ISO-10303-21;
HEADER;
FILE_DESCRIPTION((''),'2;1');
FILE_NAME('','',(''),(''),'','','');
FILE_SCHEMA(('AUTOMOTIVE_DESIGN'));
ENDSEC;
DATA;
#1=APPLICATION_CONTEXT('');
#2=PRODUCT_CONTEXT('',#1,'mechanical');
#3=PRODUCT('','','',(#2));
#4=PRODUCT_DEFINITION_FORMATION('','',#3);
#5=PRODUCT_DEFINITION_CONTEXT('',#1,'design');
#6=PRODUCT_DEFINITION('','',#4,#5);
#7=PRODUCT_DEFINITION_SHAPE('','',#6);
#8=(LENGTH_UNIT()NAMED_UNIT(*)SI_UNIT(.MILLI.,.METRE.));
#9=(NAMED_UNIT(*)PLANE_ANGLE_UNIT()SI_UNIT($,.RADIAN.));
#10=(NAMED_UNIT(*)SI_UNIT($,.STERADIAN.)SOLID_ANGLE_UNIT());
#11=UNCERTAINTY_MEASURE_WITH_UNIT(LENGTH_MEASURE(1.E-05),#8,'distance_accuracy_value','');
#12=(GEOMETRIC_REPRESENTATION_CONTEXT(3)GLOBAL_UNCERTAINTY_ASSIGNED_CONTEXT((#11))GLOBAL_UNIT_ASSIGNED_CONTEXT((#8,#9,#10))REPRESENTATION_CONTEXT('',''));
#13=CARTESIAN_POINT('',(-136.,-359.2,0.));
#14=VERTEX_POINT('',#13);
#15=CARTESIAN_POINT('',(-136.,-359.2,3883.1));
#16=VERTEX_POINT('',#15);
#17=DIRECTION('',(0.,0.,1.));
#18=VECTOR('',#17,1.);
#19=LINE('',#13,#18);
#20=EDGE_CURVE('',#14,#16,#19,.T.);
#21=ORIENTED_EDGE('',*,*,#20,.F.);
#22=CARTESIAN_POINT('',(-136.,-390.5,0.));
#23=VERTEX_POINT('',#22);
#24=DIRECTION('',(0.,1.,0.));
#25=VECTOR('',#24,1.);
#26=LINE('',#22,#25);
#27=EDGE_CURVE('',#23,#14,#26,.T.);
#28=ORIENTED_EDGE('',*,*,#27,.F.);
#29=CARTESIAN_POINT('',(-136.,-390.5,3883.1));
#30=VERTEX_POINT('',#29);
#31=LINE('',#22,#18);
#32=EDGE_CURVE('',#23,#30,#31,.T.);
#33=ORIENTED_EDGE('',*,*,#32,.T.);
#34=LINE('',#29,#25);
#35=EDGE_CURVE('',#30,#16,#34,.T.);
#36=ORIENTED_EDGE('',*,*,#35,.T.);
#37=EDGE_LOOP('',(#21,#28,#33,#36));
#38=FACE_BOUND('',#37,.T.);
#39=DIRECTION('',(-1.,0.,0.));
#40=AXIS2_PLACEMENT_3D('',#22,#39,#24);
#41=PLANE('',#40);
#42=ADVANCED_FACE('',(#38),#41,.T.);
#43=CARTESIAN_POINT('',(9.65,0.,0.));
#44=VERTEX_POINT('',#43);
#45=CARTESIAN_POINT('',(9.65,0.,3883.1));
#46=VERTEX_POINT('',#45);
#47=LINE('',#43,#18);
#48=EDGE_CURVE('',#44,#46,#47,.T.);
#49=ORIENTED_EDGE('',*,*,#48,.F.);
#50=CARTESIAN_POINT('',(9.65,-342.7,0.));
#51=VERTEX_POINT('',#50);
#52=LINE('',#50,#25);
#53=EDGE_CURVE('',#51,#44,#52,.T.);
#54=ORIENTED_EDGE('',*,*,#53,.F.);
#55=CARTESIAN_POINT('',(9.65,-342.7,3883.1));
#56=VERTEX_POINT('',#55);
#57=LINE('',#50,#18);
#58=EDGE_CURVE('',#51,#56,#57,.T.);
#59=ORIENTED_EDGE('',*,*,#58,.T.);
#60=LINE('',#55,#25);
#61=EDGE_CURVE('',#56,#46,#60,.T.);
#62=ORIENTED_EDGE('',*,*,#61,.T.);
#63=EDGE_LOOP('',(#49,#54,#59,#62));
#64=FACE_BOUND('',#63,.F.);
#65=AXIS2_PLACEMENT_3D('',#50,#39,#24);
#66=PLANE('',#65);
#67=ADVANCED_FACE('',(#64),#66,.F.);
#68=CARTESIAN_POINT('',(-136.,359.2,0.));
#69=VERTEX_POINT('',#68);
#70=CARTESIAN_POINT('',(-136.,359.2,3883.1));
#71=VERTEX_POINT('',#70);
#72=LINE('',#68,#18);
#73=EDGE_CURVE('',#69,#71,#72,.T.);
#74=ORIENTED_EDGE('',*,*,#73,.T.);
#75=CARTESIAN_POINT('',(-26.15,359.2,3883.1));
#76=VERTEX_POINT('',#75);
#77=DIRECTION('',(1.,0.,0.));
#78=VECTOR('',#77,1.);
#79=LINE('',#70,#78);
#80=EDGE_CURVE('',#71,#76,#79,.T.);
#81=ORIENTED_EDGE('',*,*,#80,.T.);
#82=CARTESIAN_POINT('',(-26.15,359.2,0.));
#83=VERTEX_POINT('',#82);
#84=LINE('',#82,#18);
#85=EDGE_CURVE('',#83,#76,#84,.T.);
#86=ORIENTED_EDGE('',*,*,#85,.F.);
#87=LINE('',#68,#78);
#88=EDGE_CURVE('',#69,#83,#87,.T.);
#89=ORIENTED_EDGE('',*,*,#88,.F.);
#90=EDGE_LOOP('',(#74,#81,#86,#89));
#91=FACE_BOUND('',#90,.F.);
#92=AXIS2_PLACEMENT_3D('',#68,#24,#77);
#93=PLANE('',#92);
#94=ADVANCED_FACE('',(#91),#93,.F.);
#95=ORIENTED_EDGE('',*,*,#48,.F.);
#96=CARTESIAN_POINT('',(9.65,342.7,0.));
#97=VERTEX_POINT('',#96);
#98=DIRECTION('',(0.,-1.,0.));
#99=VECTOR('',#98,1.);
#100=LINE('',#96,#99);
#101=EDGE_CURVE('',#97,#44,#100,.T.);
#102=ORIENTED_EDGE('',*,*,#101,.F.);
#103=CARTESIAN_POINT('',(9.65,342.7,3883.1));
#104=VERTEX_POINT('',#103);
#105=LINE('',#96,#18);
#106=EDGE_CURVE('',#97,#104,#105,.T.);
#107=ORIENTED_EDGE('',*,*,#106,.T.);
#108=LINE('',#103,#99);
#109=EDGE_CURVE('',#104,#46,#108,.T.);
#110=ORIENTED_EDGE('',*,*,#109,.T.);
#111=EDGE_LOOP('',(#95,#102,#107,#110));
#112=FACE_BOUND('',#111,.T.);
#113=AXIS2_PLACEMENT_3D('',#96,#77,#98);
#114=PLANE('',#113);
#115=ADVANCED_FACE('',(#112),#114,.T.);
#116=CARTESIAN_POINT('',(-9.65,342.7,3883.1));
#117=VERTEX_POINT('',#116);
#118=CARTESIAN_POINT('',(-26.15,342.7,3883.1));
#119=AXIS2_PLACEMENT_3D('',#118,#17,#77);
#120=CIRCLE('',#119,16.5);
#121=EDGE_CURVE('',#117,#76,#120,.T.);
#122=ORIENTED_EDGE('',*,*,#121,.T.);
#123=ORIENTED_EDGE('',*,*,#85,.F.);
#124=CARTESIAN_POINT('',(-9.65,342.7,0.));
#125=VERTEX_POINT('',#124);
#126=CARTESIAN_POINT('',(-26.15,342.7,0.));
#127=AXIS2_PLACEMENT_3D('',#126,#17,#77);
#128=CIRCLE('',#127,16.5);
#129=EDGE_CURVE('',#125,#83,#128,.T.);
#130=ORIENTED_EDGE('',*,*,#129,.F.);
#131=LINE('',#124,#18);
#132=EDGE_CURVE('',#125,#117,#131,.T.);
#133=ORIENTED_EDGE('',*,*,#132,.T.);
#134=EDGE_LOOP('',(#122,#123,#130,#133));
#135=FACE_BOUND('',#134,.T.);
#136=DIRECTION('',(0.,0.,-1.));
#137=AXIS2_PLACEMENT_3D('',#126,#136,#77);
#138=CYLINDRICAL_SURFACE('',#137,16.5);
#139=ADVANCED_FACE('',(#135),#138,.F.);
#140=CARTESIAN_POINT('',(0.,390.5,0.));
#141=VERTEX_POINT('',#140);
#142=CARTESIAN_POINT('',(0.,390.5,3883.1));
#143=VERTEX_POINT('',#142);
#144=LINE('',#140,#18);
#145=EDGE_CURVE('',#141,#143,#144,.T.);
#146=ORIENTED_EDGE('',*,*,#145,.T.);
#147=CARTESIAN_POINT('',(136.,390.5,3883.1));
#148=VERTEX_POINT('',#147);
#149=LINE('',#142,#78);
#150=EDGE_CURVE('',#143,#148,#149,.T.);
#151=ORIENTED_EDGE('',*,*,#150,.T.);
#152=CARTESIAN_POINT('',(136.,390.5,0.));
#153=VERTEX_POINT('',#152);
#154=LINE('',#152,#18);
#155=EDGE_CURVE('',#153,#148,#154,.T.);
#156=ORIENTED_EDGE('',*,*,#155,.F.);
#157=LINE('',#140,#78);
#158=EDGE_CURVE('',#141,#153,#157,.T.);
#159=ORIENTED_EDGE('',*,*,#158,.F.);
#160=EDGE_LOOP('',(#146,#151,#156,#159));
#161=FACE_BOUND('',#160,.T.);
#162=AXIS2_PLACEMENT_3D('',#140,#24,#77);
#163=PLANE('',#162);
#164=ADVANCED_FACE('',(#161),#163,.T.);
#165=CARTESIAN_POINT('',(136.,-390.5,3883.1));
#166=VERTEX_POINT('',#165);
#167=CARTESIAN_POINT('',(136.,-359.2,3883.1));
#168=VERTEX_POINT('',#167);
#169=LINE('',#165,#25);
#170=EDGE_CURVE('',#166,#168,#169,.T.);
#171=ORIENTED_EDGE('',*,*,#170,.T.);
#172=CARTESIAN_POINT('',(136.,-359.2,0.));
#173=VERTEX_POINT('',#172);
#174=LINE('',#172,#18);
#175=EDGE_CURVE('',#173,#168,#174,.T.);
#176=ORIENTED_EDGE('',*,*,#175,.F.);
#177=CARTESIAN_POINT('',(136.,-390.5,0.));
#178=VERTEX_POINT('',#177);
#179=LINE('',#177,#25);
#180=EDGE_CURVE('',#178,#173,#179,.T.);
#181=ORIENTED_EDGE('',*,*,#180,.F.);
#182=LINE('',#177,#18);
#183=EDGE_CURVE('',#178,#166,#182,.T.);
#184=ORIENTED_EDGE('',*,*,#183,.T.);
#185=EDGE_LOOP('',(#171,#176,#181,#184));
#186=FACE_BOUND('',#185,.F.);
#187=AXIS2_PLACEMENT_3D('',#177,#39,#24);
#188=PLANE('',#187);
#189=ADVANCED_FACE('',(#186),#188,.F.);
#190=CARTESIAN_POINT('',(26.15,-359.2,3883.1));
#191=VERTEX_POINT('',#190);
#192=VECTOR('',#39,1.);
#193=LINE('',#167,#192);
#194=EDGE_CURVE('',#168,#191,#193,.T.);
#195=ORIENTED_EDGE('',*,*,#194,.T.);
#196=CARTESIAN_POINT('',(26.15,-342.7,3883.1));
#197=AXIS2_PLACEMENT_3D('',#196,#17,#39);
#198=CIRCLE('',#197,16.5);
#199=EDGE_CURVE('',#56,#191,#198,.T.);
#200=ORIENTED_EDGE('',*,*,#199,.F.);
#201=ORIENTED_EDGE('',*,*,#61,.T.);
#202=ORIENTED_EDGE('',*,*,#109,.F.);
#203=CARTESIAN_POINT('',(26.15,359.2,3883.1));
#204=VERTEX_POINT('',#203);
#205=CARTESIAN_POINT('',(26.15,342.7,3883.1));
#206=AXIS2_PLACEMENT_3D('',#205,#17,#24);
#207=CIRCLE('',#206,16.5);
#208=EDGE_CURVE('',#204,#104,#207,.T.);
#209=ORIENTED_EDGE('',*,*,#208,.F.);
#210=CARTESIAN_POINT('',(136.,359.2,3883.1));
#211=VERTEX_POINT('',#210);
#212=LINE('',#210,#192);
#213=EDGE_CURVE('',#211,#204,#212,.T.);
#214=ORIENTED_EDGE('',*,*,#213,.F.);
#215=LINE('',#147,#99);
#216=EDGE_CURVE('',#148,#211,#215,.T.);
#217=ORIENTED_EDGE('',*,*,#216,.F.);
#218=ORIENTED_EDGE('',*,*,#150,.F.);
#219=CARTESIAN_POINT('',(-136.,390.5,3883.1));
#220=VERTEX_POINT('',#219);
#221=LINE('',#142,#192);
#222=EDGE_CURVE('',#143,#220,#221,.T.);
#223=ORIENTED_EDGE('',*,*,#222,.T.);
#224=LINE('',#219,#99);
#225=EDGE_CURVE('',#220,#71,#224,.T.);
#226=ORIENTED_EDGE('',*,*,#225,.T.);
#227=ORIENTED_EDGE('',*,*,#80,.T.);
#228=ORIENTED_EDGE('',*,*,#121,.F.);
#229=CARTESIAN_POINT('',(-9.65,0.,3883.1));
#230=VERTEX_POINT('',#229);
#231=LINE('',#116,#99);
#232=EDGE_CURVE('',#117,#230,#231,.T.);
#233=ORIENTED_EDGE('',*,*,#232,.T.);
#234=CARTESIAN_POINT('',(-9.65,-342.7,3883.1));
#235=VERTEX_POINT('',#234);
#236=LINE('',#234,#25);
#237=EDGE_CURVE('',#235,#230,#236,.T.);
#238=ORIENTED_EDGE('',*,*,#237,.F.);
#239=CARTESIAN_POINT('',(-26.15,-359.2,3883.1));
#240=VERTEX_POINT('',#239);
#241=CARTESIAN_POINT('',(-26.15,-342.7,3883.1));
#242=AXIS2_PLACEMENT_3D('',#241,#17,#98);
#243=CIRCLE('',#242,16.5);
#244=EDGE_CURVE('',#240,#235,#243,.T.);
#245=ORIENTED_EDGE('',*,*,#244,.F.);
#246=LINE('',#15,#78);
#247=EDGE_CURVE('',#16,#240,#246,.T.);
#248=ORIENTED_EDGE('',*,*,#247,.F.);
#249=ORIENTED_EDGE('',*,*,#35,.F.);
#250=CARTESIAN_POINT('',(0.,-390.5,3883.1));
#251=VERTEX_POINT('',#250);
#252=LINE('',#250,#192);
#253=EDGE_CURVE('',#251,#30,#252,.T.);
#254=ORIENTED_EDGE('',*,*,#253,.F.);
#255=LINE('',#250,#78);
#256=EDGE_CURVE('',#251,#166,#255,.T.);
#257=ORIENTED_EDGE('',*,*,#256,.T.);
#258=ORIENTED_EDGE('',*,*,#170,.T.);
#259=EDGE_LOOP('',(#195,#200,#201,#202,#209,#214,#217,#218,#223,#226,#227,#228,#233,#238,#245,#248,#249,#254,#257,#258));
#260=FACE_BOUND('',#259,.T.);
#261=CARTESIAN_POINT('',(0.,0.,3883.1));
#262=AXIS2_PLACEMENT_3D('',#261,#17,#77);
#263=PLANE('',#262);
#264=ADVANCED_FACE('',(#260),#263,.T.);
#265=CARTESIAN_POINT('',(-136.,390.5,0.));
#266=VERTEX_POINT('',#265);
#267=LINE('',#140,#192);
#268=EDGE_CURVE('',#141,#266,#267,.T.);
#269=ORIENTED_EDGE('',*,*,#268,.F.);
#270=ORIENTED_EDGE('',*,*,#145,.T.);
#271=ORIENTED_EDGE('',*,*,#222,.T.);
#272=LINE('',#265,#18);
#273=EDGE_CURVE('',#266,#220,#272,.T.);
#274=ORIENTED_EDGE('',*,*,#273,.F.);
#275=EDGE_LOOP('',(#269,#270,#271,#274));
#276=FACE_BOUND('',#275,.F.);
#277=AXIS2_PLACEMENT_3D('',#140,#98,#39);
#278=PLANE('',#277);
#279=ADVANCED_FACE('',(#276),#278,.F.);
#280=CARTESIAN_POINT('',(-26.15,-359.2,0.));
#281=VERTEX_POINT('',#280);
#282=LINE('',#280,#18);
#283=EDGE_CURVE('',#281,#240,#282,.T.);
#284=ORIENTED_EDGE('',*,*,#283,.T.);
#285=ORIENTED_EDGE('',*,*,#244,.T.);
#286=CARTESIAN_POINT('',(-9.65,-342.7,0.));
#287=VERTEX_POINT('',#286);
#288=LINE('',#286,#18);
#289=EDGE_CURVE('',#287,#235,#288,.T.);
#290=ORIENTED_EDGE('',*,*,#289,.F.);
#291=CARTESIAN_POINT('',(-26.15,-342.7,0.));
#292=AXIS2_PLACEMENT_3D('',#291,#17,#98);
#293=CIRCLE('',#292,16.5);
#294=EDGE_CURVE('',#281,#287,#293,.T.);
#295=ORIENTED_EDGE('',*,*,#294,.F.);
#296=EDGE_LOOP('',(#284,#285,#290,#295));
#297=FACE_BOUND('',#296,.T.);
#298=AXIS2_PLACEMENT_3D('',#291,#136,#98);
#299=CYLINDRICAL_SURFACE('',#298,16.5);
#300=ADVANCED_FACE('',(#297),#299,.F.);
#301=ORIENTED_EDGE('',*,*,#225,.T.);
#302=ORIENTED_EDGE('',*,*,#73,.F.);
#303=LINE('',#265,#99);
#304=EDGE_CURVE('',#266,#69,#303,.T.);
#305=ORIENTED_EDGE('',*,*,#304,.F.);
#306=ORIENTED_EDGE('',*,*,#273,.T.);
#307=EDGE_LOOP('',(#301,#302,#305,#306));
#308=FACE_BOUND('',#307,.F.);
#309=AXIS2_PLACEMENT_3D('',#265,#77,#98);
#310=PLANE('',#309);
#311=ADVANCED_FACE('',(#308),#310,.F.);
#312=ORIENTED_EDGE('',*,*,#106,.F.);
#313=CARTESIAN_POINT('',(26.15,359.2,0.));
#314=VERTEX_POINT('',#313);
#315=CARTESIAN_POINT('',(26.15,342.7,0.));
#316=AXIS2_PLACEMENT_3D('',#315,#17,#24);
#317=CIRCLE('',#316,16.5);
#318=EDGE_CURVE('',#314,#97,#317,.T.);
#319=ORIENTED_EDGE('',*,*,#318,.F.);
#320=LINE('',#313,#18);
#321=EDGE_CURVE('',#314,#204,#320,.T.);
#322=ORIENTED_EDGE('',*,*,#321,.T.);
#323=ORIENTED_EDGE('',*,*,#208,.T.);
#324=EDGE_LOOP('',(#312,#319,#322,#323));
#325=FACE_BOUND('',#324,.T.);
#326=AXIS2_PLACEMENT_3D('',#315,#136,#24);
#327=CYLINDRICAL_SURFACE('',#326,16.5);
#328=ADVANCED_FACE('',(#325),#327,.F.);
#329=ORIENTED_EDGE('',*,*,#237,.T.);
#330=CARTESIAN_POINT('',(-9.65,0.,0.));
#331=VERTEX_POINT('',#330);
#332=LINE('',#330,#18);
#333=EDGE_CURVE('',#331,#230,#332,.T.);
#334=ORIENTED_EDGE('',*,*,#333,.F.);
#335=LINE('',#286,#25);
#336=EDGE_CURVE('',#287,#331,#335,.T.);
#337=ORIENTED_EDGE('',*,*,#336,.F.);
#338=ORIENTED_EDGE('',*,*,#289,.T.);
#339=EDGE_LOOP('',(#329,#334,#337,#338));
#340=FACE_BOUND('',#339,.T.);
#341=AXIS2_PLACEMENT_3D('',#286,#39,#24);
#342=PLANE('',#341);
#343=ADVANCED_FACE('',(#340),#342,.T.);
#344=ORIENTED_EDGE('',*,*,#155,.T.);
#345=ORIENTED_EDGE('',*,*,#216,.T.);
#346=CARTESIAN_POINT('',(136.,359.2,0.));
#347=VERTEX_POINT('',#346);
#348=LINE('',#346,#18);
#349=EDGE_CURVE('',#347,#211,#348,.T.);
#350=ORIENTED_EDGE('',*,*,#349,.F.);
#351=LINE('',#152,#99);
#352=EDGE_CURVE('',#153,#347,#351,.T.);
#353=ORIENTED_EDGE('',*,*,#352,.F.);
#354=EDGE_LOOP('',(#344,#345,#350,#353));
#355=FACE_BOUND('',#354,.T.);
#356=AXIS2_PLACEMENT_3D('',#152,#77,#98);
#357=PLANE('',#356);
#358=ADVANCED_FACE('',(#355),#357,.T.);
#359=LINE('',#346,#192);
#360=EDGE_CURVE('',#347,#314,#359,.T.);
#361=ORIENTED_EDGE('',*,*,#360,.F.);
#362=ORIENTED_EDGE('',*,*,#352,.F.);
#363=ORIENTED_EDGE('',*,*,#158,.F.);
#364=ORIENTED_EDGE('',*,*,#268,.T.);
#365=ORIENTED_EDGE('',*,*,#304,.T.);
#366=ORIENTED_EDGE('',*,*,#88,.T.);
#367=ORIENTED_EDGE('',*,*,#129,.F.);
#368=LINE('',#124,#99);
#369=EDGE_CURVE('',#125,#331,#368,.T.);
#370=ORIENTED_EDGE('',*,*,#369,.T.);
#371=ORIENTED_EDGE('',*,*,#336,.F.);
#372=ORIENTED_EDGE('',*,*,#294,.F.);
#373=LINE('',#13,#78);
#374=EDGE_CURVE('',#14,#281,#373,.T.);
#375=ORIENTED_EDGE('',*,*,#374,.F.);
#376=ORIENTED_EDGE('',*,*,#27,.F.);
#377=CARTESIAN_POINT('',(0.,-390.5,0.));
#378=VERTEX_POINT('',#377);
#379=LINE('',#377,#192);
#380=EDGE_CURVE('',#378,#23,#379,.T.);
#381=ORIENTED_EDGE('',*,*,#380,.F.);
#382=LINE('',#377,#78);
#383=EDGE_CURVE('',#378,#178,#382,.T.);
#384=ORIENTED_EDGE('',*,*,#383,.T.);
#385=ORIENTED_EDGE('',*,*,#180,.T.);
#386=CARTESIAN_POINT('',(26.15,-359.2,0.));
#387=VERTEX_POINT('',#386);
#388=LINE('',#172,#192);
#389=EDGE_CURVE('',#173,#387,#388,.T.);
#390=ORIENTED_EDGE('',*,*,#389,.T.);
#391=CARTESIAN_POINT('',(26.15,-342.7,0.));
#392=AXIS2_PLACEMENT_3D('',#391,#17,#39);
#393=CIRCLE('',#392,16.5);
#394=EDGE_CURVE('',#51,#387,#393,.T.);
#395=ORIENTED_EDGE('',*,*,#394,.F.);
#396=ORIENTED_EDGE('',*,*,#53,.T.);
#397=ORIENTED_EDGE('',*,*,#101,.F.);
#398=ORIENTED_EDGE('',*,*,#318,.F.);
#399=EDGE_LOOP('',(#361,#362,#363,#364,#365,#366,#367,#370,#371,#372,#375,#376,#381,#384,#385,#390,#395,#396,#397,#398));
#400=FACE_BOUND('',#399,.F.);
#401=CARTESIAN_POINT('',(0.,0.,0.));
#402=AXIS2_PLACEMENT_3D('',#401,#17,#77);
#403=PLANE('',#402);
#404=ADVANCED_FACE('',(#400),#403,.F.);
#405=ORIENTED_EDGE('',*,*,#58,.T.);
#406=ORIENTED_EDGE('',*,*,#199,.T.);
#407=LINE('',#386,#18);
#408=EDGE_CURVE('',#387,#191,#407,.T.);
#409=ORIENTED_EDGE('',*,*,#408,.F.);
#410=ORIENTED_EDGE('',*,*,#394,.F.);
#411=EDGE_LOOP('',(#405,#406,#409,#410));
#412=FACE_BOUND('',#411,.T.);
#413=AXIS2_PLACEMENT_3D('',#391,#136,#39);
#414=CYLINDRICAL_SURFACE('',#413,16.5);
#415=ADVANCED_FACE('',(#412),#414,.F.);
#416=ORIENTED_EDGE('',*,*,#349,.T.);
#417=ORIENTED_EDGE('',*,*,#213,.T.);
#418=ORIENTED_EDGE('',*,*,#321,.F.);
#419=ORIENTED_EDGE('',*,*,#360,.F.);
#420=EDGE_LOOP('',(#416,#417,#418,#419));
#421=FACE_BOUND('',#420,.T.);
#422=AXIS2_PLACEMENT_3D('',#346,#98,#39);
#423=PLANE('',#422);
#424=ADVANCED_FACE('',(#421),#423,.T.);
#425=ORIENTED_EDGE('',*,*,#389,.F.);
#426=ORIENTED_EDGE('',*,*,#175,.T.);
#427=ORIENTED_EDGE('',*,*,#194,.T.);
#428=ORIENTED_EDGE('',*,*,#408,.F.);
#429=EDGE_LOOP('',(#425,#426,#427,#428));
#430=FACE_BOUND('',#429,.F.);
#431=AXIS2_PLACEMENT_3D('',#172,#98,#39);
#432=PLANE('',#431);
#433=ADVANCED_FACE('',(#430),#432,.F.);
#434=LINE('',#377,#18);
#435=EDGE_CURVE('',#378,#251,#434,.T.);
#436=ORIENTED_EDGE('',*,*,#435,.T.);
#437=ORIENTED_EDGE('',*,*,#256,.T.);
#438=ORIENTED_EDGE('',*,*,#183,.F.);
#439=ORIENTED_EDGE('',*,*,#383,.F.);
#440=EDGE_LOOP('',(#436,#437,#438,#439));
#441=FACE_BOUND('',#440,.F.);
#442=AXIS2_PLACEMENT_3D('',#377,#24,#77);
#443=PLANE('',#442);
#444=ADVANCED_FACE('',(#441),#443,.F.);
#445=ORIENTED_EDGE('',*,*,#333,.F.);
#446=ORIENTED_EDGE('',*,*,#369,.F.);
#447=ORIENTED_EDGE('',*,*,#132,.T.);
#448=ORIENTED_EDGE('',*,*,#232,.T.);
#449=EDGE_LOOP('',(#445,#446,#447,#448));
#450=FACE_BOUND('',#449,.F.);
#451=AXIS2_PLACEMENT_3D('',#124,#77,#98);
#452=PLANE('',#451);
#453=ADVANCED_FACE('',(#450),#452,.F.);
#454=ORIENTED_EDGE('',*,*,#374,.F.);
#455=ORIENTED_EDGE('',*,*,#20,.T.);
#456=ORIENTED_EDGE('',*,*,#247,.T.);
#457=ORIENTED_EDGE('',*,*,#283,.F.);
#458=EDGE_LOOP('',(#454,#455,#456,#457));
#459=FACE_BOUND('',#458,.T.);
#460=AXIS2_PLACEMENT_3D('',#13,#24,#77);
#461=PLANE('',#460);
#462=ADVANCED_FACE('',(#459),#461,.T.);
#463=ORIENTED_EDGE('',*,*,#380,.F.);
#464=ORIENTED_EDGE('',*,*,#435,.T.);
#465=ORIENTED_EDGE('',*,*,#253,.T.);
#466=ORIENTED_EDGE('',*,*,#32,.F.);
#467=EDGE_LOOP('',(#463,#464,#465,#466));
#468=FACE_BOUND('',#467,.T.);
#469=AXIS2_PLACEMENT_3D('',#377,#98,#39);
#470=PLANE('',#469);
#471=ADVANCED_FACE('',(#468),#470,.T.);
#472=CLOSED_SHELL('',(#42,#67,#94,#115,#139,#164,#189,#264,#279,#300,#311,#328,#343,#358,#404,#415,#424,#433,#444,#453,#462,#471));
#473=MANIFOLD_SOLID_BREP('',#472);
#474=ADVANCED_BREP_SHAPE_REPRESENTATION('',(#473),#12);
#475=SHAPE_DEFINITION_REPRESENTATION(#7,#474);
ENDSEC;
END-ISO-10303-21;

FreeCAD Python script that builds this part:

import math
import FreeCAD as App
import Part
import Sketcher

V = App.Vector

doc = App.newDocument("Part")
params = doc.addObject("Spreadsheet::Sheet", "Params")
for row, (alias, value) in enumerate([
    ("sketch1_radius", "16.5 mm"),
    ("sketch1_height", "31.3 mm"),
    ("pad1_length", "3883.1 mm"),
], start=1):
    params.set(f"A{row}", alias)
    params.set(f"B{row}", "=" + value)
    params.setAlias(f"B{row}", alias)

body = doc.addObject("PartDesign::Body", "Body")

# Sketch on XY plane
sketch1 = body.newObject("Sketcher::SketchObject", "Sketch")
sketch1.AttachmentSupport = (doc.getObject("XY_Plane"), [""])
sketch1.MapMode = "FlatFace"
sketch1.addGeometry([
    Part.LineSegment(V(-136, -359.2, 0), V(-136, -390.5, 0)),  # 0
    Part.LineSegment(V(-136, -390.5, 0), V(136, -390.5, 0)),  # 1
    Part.LineSegment(V(136, -390.5, 0), V(136, -359.2, 0)),  # 2
    Part.LineSegment(V(136, -359.2, 0), V(26.15, -359.2, 0)),  # 3
    Part.ArcOfCircle(Part.Circle(V(26.15, -342.7, 0), V(0, 0, 1), 16.5), math.radians(180), math.radians(270)),  # 4
    Part.LineSegment(V(9.65, -342.7, 0), V(9.65, 342.7, 0)),  # 5
    Part.ArcOfCircle(Part.Circle(V(26.15, 342.7, 0), V(0, 0, 1), 16.5), math.radians(90), math.radians(180)),  # 6
    Part.LineSegment(V(26.15, 359.2, 0), V(136, 359.2, 0)),  # 7
    Part.LineSegment(V(136, 359.2, 0), V(136, 390.5, 0)),  # 8
    Part.LineSegment(V(136, 390.5, 0), V(-136, 390.5, 0)),  # 9
    Part.LineSegment(V(-136, 390.5, 0), V(-136, 359.2, 0)),  # 10
    Part.LineSegment(V(-136, 359.2, 0), V(-26.15, 359.2, 0)),  # 11
    Part.ArcOfCircle(Part.Circle(V(-26.15, 342.7, 0), V(0, 0, 1), 16.5), math.radians(0), math.radians(90)),  # 12
    Part.LineSegment(V(-9.65, 342.7, 0), V(-9.65, -342.7, 0)),  # 13
    Part.ArcOfCircle(Part.Circle(V(-26.15, -342.7, 0), V(0, 0, 1), 16.5), math.radians(-90), math.radians(0)),  # 14
    Part.LineSegment(V(-26.15, -359.2, 0), V(-136, -359.2, 0)),  # 15
], False)
sketch1.addConstraint([
    Sketcher.Constraint("Coincident", 0, 2, 1, 1),
    Sketcher.Constraint("Coincident", 1, 2, 2, 1),
    Sketcher.Constraint("Coincident", 2, 2, 3, 1),
    Sketcher.Constraint("Tangent", 3, 2, 4, 2),
    Sketcher.Constraint("Tangent", 4, 1, 5, 1),
    Sketcher.Constraint("Tangent", 5, 2, 6, 2),
    Sketcher.Constraint("Tangent", 6, 1, 7, 1),
    Sketcher.Constraint("Coincident", 7, 2, 8, 1),
    Sketcher.Constraint("Coincident", 8, 2, 9, 1),
    Sketcher.Constraint("Coincident", 9, 2, 10, 1),
    Sketcher.Constraint("Coincident", 10, 2, 11, 1),
    Sketcher.Constraint("Tangent", 11, 2, 12, 2),
    Sketcher.Constraint("Tangent", 12, 1, 13, 1),
    Sketcher.Constraint("Tangent", 13, 2, 14, 2),
    Sketcher.Constraint("Tangent", 14, 1, 15, 1),
    Sketcher.Constraint("Coincident", 15, 2, 0, 1),
    Sketcher.Constraint("Vertical", 0),
    Sketcher.Constraint("Horizontal", 1),
    Sketcher.Constraint("Vertical", 2),
    Sketcher.Constraint("Horizontal", 3),
    Sketcher.Constraint("Vertical", 5),
    Sketcher.Constraint("Horizontal", 7),
    Sketcher.Constraint("Vertical", 8),
    Sketcher.Constraint("Horizontal", 9),
    Sketcher.Constraint("Vertical", 10),
    Sketcher.Constraint("Horizontal", 11),
    Sketcher.Constraint("Vertical", 13),
    Sketcher.Constraint("Horizontal", 15),
    Sketcher.Constraint("Equal", 4, 6),
    Sketcher.Constraint("Equal", 6, 12),
    Sketcher.Constraint("Equal", 12, 14),
    Sketcher.Constraint("Symmetric", 4, 3, 12, 3, -1, 1),
    Sketcher.Constraint("Symmetric", 0, 2, 8, 2, -1, 1),
    Sketcher.Constraint("Symmetric", 7, 2, 10, 2, -2),
    Sketcher.Constraint("Symmetric", 2, 2, 15, 2, -2),
    Sketcher.Constraint("Radius", 4, 16.5),
    Sketcher.Constraint("DistanceY", 0, 2, 0, 1, 31.3),
    Sketcher.Constraint("DistanceX", 0, 2, -1, 1, 136.0),
    Sketcher.Constraint("DistanceY", 0, 2, -1, 1, 390.5),
    Sketcher.Constraint("DistanceX", -1, 1, 4, 1, 9.65),
])
sketch1.setExpression("Constraints[35]", "Params.sketch1_radius")
sketch1.setExpression("Constraints[36]", "Params.sketch1_height")
pad1 = body.newObject("PartDesign::Pad", "Pad")
pad1.Profile = sketch1
pad1.setExpression("Length", "Params.pad1_length")

doc.recompute()
